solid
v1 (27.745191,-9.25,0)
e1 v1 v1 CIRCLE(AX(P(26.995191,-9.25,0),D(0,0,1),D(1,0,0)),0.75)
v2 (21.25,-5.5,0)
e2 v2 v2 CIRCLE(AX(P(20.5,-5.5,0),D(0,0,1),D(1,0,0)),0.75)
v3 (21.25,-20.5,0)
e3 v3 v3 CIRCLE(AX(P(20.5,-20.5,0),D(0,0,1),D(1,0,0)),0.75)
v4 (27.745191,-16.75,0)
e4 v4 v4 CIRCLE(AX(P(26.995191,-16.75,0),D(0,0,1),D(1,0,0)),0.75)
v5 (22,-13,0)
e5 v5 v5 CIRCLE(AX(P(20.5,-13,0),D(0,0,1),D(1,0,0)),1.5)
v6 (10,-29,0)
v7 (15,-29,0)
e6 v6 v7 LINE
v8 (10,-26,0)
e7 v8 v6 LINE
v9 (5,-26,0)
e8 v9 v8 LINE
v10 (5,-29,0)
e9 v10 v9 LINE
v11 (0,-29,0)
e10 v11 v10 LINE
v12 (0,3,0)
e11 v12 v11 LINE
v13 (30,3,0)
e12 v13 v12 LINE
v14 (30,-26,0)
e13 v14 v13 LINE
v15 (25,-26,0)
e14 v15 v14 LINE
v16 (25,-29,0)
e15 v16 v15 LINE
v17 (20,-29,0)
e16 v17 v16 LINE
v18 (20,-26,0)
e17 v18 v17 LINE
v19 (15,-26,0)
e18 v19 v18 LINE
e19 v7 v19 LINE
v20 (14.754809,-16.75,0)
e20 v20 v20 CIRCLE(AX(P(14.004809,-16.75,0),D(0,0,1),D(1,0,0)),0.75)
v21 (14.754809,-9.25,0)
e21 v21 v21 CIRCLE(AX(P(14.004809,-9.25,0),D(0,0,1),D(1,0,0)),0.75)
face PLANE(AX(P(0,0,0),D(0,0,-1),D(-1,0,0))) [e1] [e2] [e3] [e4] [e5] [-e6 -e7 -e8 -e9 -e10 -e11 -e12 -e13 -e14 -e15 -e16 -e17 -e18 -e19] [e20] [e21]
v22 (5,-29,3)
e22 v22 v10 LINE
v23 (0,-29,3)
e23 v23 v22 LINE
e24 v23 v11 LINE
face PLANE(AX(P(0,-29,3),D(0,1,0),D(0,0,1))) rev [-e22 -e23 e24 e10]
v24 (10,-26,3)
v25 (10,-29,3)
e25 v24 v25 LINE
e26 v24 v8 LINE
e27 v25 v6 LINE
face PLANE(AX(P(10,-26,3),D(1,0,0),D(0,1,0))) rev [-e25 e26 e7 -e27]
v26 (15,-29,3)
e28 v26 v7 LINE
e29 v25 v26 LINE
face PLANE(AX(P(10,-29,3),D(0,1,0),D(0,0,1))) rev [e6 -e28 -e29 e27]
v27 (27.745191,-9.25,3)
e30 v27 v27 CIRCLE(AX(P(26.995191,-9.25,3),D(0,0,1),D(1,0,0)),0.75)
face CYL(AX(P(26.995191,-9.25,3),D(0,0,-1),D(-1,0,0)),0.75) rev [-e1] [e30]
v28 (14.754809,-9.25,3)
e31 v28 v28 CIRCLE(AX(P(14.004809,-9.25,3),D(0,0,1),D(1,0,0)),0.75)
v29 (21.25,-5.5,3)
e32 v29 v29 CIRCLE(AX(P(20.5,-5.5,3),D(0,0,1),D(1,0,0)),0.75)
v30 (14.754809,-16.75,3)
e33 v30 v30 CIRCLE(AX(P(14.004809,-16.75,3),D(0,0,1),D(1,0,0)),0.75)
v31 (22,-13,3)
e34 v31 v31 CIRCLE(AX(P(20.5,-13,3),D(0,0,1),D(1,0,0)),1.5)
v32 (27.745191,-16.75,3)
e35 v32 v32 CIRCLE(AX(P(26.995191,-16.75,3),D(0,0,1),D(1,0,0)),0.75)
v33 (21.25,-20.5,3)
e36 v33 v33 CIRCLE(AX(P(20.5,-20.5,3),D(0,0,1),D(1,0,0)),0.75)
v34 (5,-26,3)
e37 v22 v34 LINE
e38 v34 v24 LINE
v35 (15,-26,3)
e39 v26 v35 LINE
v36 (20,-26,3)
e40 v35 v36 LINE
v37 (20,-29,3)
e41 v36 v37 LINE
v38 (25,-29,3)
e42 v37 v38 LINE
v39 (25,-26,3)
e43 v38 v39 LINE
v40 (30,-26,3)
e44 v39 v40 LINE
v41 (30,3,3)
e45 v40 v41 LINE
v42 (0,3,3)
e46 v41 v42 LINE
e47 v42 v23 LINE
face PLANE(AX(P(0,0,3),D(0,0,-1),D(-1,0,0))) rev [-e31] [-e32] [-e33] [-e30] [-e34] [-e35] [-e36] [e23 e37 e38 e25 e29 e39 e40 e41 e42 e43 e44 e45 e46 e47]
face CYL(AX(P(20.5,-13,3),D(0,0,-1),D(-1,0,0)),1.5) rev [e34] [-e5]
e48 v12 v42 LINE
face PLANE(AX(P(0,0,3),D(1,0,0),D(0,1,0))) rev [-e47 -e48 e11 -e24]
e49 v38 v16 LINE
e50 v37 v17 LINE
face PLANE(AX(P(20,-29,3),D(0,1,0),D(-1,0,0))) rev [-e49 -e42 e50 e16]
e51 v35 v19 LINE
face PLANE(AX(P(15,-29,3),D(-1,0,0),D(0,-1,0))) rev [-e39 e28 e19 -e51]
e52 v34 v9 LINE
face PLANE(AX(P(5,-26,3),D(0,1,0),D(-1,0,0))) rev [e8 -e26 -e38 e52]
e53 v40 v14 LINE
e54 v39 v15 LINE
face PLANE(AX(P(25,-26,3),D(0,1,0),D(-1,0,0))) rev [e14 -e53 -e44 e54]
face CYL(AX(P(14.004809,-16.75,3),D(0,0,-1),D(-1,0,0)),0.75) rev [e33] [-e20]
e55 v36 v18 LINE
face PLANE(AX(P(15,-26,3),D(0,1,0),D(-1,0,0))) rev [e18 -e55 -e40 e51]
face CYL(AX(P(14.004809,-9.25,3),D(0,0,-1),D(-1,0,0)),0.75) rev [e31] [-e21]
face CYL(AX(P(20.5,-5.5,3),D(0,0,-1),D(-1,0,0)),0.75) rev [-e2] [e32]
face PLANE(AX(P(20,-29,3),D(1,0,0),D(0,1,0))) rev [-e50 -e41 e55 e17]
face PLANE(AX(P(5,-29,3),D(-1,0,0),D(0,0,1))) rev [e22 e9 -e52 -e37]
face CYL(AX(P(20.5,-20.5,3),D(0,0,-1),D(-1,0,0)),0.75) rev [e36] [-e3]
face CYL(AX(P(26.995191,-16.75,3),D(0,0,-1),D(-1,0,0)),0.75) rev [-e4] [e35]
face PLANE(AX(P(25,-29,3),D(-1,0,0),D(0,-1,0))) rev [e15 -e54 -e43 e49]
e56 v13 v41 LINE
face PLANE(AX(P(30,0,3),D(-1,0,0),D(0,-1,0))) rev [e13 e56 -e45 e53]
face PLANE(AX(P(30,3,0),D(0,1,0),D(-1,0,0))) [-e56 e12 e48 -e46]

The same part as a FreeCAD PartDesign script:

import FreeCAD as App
import Part
import Sketcher
Q = App.Units.Quantity


def add_polygon(sketch, points):
    """Adds a closed chain of lines whose ends are joined by coincident constraints."""
    first, n = sketch.GeometryCount, len(points)
    for a, b in zip(points, points[1:] + points[:1]):
        sketch.addGeometry(Part.LineSegment(App.Vector(*a, 0), App.Vector(*b, 0)), False)
    for i in range(n):
        sketch.addConstraint(Sketcher.Constraint("Coincident", first + i, 2, first + (i + 1) % n, 1))

doc = App.newDocument("Part")
body = doc.addObject("PartDesign::Body", "Body")

# Sketch on XY plane
sketch1 = body.newObject("Sketcher::SketchObject", "Sketch")
sketch1.AttachmentSupport = (doc.getObject("XY_Plane"), [""])
sketch1.MapMode = "FlatFace"
add_polygon(sketch1, [(10, 3), (10, 0), (0, 0), (0, -29), (5, -29), (5, -26), (10, -26), (10, -29), (15, -29), (15, -26), (20, -26), (20, -29), (25, -29), (25, -26), (30, -26), (30, 0), (25, 0), (25, 3), (20, 3), (20, 0), (15, 0), (15, 3)])  # lines 0-21
sketch1.addGeometry(Part.Circle(App.Vector(20.5, -20.5, 0), App.Vector(0, 0, 1), 0.8), False)  # 22
sketch1.addGeometry(Part.Circle(App.Vector(27, -16.8, 0), App.Vector(0, 0, 1), 0.8), False)  # 23
sketch1.addGeometry(Part.Circle(App.Vector(14, -16.8, 0), App.Vector(0, 0, 1), 0.8), False)  # 24
sketch1.addGeometry(Part.Circle(App.Vector(27, -9.2, 0), App.Vector(0, 0, 1), 0.8), False)  # 25
sketch1.addGeometry(Part.Circle(App.Vector(20.5, -13, 0), App.Vector(0, 0, 1), 1.5), False)  # 26
sketch1.addGeometry(Part.Circle(App.Vector(20.5, -5.5, 0), App.Vector(0, 0, 1), 0.8), False)  # 27
sketch1.addGeometry(Part.Circle(App.Vector(14, -9.2, 0), App.Vector(0, 0, 1), 0.8), False)  # 28
sketch1.addConstraint(Sketcher.Constraint("Vertical", 0))
sketch1.addConstraint(Sketcher.Constraint("Horizontal", 1))
sketch1.addConstraint(Sketcher.Constraint("Vertical", 2))
sketch1.addConstraint(Sketcher.Constraint("Horizontal", 3))
sketch1.addConstraint(Sketcher.Constraint("Vertical", 4))
sketch1.addConstraint(Sketcher.Constraint("Horizontal", 5))
sketch1.addConstraint(Sketcher.Constraint("Vertical", 6))
sketch1.addConstraint(Sketcher.Constraint("Horizontal", 7))
sketch1.addConstraint(Sketcher.Constraint("Vertical", 8))
sketch1.addConstraint(Sketcher.Constraint("Horizontal", 9))
sketch1.addConstraint(Sketcher.Constraint("Vertical", 10))
sketch1.addConstraint(Sketcher.Constraint("Horizontal", 11))
sketch1.addConstraint(Sketcher.Constraint("Vertical", 12))
sketch1.addConstraint(Sketcher.Constraint("Horizontal", 13))
sketch1.addConstraint(Sketcher.Constraint("Vertical", 14))
sketch1.addConstraint(Sketcher.Constraint("Horizontal", 15))
sketch1.addConstraint(Sketcher.Constraint("Vertical", 16))
sketch1.addConstraint(Sketcher.Constraint("Horizontal", 17))
sketch1.addConstraint(Sketcher.Constraint("Vertical", 18))
sketch1.addConstraint(Sketcher.Constraint("Horizontal", 19))
sketch1.addConstraint(Sketcher.Constraint("Vertical", 20))
sketch1.addConstraint(Sketcher.Constraint("Horizontal", 21))
sketch1.addConstraint(Sketcher.Constraint("Coincident", 1, 2, -1, 1))
sketch1.addConstraint(Sketcher.Constraint("Equal", 22, 23))
sketch1.addConstraint(Sketcher.Constraint("Equal", 23, 24))
sketch1.addConstraint(Sketcher.Constraint("Equal", 24, 25))
sketch1.addConstraint(Sketcher.Constraint("Equal", 25, 27))
sketch1.addConstraint(Sketcher.Constraint("Equal", 27, 28))
sketch1.addConstraint(Sketcher.Constraint("PointOnObject", 14, 2, -1))
sketch1.addConstraint(Sketcher.Constraint("PointOnObject", 18, 2, -1))
sketch1.addConstraint(Sketcher.Constraint("Horizontal", 23, 3, 24, 3))
sketch1.addConstraint(Sketcher.Constraint("Horizontal", 25, 3, 28, 3))
sketch1.addConstraint(Sketcher.Constraint("Horizontal", 3, 2, 6, 2))
sketch1.addConstraint(Sketcher.Constraint("Horizontal", 5, 2, 8, 2))
sketch1.addConstraint(Sketcher.Constraint("Horizontal", 7, 2, 10, 2))
sketch1.addConstraint(Sketcher.Constraint("Horizontal", 9, 2, 12, 2))
sketch1.addConstraint(Sketcher.Constraint("Horizontal", 17, 2, 20, 2))
sketch1.addConstraint(Sketcher.Constraint("Vertical", 23, 3, 25, 3))
sketch1.addConstraint(Sketcher.Constraint("Vertical", 22, 3, 26, 3))
sketch1.addConstraint(Sketcher.Constraint("Vertical", 26, 3, 27, 3))
sketch1.addConstraint(Sketcher.Constraint("Vertical", 24, 3, 28, 3))
sketch1.addConstraint(Sketcher.Constraint("Vertical", 0, 2, 5, 2))
sketch1.addConstraint(Sketcher.Constraint("Vertical", 12, 2, 15, 2))
sketch1.addConstraint(Sketcher.Constraint("Vertical", 10, 2, 17, 2))
sketch1.addConstraint(Sketcher.Constraint("Vertical", 8, 2, 19, 2))
sketch1.addConstraint(Sketcher.Constraint("Equal", 3, 5))
sketch1.addConstraint(Sketcher.Constraint("Equal", 5, 7))
sketch1.addConstraint(Sketcher.Constraint("Equal", 7, 9))
sketch1.addConstraint(Sketcher.Constraint("Equal", 9, 11))
sketch1.addConstraint(Sketcher.Constraint("Equal", 11, 13))
sketch1.addConstraint(Sketcher.Constraint("Equal", 0, 4))
sketch1.addConstraint(Sketcher.Constraint("Diameter", 26, Q("3 mm")))
sketch1.addConstraint(Sketcher.Constraint("Diameter", 22, Q("1.5 mm")))
sketch1.addConstraint(Sketcher.Constraint("DistanceX", 1, 2, 1, 1, Q("10 mm")))
sketch1.addConstraint(Sketcher.Constraint("DistanceY", 0, 2, 0, 1, Q("3 mm")))
sketch1.addConstraint(Sketcher.Constraint("DistanceY", 2, 2, 2, 1, Q("29 mm")))
sketch1.addConstraint(Sketcher.Constraint("DistanceY", 26, 3, -1, 1, Q("13 mm")))
sketch1.addConstraint(Sketcher.Constraint("DistanceY", 22, 3, 27, 3, Q("15 mm")))
sketch1.addConstraint(Sketcher.Constraint("DistanceX", -1, 1, 22, 3, Q("20.5 mm")))
sketch1.addConstraint(Sketcher.Constraint("DistanceY", 22, 3, -1, 1, Q("20.5 mm")))
sketch1.addConstraint(Sketcher.Constraint("DistanceY", 23, 3, 25, 3, Q("7.5 mm")))
sketch1.addConstraint(Sketcher.Constraint("DistanceY", 23, 3, -1, 1, Q("16.75 mm")))
sketch1.addConstraint(Sketcher.Constraint("DistanceX", -1, 1, 23, 3, Q("26.995191 mm")))
sketch1.addConstraint(Sketcher.Constraint("DistanceX", -1, 1, 24, 3, Q("14.004809 mm")))
pad1 = body.newObject("PartDesign::Pad", "Pad")
pad1.Profile = sketch1
pad1.Length = 3

# Sketch on XY plane
sketch2 = body.newObject("Sketcher::SketchObject", "Sketch001")
sketch2.AttachmentSupport = (doc.getObject("XY_Plane"), [""])
sketch2.MapMode = "FlatFace"
add_polygon(sketch2, [(10, 7), (10, 0), (25, 0), (25, 7)])  # lines 0-3
sketch2.addConstraint(Sketcher.Constraint("Vertical", 0))
sketch2.addConstraint(Sketcher.Constraint("Horizontal", 1))
sketch2.addConstraint(Sketcher.Constraint("Vertical", 2))
sketch2.addConstraint(Sketcher.Constraint("Horizontal", 3))
sketch2.addConstraint(Sketcher.Constraint("PointOnObject", 0, 2, -1))
sketch2.addConstraint(Sketcher.Constraint("DistanceX", 1, 1, 1, 2, Q("15 mm")))
sketch2.addConstraint(Sketcher.Constraint("DistanceX", -1, 1, 0, 2, Q("10 mm")))
sketch2.addConstraint(Sketcher.Constraint("DistanceY", 0, 2, 0, 1, Q("6.718908 mm")))
pocket1 = body.newObject("PartDesign::Pocket", "Pocket")
pocket1.Profile = sketch2
pocket1.Length = 3
pocket1.Reversed = True

# Sketch on XY plane
sketch3 = body.newObject("Sketcher::SketchObject", "Sketch002")
sketch3.AttachmentSupport = (doc.getObject("XY_Plane"), [""])
sketch3.MapMode = "FlatFace"
sketch3.AttachmentOffset = App.Placement(App.Vector(0, 0, 3), App.Rotation())
add_polygon(sketch3, [(0, 3), (0, 0), (30, 0), (30, 3)])  # lines 0-3
sketch3.addConstraint(Sketcher.Constraint("Vertical", 0))
sketch3.addConstraint(Sketcher.Constraint("Horizontal", 1))
sketch3.addConstraint(Sketcher.Constraint("Vertical", 2))
sketch3.addConstraint(Sketcher.Constraint("Horizontal", 3))
sketch3.addConstraint(Sketcher.Constraint("Coincident", 0, 2, -1, 1))
sketch3.addConstraint(Sketcher.Constraint("DistanceX", 1, 1, 1, 2, Q("30 mm")))
sketch3.addConstraint(Sketcher.Constraint("DistanceY", 0, 2, 0, 1, Q("3 mm")))
pad2 = body.newObject("PartDesign::Pad", "Pad001")
pad2.Profile = sketch3
pad2.Length = 3
pad2.Reversed = True

doc.recompute()
